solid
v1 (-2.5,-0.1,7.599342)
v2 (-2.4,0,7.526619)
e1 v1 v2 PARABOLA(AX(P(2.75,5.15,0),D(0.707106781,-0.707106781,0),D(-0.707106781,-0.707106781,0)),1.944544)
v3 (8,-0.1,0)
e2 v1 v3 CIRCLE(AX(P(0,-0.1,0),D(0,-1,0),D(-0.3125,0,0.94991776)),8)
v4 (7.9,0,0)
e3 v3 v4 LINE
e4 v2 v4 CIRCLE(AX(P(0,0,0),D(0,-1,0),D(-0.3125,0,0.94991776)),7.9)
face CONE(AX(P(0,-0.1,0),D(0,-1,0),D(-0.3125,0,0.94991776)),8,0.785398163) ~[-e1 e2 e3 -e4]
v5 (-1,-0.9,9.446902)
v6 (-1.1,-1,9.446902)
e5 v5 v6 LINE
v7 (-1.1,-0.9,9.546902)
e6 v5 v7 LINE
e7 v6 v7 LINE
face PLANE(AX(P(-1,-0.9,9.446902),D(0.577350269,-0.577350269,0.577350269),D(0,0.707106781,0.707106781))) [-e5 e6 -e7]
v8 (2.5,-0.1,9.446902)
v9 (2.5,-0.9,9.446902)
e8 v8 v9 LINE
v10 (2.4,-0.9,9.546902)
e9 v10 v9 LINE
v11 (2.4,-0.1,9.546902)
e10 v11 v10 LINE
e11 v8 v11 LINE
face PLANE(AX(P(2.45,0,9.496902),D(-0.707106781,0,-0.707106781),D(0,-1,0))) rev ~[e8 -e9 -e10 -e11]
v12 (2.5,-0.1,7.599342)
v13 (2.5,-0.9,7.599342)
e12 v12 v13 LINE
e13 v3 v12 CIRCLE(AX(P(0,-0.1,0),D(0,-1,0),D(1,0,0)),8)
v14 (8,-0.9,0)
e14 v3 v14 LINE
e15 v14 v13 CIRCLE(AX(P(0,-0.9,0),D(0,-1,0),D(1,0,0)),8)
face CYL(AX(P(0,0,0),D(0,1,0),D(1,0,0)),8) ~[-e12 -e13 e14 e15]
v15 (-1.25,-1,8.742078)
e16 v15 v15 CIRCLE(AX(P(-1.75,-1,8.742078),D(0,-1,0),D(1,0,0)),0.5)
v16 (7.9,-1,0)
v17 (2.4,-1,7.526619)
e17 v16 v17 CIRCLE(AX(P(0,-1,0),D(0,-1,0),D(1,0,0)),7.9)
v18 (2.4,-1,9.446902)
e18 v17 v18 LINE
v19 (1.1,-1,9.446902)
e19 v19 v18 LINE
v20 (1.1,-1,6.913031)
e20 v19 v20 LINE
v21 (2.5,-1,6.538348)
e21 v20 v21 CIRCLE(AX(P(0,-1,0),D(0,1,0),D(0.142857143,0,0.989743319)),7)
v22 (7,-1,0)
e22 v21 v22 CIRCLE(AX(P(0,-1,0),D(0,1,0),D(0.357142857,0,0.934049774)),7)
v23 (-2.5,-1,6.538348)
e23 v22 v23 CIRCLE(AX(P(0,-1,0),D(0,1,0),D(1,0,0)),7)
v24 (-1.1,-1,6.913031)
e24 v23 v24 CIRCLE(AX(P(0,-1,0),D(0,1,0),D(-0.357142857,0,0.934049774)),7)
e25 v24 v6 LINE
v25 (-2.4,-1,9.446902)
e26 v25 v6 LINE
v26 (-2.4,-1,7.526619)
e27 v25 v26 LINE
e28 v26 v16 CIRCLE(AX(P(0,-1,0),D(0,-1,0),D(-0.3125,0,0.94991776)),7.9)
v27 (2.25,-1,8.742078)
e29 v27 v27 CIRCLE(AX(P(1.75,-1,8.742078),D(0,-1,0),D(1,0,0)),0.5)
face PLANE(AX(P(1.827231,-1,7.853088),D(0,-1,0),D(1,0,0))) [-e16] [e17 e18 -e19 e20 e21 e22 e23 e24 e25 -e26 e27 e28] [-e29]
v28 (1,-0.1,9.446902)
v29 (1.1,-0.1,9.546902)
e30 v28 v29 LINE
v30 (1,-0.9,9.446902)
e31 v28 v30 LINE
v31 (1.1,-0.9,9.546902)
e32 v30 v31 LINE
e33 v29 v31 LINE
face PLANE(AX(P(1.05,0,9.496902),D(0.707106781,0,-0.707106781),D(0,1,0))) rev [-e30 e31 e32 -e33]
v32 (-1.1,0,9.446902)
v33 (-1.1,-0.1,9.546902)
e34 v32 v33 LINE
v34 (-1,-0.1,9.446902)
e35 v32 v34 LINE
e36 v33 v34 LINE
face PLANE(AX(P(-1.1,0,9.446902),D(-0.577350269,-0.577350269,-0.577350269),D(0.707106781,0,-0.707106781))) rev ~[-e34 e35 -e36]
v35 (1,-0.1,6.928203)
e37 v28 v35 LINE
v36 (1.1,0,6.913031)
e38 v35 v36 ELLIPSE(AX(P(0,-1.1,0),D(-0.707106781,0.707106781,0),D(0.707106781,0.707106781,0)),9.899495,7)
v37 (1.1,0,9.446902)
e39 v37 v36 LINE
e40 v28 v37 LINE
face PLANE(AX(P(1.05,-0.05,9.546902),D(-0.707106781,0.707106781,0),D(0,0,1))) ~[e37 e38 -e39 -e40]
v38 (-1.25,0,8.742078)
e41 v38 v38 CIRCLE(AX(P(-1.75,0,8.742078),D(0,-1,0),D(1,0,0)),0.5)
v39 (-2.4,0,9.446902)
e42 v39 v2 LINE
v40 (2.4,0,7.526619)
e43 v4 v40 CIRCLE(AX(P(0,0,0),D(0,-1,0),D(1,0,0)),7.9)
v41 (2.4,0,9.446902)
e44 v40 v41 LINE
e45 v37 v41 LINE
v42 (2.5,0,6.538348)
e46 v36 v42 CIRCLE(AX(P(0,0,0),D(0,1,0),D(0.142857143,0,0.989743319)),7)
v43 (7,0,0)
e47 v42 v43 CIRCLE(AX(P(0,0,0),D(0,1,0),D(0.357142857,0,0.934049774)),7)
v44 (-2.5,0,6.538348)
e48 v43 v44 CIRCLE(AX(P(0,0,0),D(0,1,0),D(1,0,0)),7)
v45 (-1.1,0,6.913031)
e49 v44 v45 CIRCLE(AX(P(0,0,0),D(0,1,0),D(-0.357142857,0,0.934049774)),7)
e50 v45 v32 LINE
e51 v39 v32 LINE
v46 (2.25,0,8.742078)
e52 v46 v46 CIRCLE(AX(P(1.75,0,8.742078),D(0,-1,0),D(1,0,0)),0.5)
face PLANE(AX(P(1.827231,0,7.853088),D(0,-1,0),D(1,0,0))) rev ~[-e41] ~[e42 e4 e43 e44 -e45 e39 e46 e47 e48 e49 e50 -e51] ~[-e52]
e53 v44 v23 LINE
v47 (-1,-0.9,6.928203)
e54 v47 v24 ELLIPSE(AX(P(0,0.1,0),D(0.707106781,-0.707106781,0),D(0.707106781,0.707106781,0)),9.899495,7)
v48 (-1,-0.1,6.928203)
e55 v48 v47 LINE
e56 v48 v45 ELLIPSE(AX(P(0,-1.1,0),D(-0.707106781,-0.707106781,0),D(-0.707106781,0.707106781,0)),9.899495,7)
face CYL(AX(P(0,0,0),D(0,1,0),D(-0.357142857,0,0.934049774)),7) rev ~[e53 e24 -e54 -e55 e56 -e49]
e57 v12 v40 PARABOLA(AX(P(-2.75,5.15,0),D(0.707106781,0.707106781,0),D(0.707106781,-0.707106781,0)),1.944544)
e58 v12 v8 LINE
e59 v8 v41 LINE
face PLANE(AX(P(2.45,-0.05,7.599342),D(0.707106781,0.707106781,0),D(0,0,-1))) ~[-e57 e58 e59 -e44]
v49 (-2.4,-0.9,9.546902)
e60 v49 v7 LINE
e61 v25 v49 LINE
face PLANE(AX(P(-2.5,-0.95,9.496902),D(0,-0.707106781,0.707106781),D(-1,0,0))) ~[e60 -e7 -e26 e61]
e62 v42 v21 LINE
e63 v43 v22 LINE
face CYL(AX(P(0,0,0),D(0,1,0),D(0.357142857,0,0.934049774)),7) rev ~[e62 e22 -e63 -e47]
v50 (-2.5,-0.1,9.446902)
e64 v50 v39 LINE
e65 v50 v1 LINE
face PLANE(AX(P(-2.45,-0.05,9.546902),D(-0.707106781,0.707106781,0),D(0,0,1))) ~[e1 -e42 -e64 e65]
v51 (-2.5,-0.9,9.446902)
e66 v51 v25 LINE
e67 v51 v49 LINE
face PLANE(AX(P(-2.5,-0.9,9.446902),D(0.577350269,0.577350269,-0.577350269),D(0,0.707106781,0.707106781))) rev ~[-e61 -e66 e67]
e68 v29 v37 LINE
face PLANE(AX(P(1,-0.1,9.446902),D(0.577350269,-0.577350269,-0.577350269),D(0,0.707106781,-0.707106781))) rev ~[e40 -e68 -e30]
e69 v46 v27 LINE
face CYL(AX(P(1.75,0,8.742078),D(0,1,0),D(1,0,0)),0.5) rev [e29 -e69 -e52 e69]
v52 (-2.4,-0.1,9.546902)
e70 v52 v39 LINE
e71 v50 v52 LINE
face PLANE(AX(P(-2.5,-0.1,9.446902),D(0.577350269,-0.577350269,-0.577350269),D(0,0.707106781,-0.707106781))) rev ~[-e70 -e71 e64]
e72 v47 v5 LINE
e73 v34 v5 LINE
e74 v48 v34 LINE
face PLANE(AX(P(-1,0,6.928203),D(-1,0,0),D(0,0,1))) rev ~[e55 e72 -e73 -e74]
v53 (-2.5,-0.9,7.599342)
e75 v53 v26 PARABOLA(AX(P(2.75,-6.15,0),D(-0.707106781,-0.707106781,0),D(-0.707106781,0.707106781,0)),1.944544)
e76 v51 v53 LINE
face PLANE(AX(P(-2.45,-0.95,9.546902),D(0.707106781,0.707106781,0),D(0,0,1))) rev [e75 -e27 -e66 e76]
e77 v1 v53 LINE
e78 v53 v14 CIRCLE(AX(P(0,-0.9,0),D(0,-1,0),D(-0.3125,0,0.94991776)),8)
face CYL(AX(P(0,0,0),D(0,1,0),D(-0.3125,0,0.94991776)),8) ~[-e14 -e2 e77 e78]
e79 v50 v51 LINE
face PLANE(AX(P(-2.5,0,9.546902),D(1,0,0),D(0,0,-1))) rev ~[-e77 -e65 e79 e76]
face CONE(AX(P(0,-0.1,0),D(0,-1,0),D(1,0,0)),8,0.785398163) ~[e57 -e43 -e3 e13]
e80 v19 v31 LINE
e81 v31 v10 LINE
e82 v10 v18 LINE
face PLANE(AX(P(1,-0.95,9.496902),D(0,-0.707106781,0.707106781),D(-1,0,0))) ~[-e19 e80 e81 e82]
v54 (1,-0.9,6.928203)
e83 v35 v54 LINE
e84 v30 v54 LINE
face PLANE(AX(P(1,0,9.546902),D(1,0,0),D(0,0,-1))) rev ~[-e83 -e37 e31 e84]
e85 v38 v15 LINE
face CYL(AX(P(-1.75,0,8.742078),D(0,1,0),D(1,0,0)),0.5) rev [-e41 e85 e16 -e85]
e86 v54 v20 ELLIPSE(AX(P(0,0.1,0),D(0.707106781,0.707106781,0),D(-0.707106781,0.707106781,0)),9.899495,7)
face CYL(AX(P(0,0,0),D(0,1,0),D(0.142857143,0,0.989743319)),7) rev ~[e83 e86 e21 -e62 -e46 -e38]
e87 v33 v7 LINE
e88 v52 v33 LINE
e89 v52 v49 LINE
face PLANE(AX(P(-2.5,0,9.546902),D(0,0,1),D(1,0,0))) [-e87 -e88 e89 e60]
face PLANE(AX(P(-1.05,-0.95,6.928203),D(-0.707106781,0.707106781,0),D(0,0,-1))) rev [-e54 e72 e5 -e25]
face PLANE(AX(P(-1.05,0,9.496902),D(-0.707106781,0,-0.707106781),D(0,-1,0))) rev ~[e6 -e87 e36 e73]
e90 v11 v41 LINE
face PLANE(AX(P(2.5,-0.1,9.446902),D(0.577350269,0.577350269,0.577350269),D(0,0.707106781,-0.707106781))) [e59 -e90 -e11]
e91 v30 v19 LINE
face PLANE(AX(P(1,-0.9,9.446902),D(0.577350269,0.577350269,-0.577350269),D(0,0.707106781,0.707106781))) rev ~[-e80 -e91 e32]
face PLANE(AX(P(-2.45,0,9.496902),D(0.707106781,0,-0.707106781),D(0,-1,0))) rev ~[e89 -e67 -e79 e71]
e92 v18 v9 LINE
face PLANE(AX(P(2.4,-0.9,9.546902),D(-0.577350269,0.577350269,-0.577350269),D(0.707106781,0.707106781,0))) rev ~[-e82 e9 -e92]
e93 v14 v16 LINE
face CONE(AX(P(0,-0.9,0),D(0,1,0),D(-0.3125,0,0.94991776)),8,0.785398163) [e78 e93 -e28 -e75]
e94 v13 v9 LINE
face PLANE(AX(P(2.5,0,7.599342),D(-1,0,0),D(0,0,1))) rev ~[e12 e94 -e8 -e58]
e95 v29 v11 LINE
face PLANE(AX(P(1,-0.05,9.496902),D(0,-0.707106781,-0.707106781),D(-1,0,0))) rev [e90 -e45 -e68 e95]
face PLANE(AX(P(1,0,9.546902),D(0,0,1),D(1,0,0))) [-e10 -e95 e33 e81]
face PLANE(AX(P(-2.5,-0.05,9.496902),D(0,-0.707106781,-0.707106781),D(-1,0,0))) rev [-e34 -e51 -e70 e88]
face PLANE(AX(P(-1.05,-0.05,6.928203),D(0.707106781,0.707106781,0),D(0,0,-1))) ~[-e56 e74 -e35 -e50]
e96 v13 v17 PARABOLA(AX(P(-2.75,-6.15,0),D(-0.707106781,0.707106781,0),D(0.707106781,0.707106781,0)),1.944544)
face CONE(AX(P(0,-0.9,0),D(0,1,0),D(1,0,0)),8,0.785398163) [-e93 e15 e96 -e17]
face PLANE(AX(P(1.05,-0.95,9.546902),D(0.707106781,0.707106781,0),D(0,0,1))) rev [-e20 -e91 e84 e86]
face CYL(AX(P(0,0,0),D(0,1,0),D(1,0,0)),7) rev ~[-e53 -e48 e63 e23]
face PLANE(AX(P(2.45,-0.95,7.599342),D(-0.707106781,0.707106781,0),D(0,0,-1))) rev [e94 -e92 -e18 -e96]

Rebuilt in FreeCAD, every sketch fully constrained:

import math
import FreeCAD as App
import Part
import Sketcher

V = App.Vector


def edges_at(feature, points):
    """Names of the edges that pass closest to the given points."""
    edges = feature.Shape.Edges
    near = lambda p: min(range(len(edges)), key=lambda i: edges[i].distToShape(Part.Vertex(*p))[0])
    return sorted({f"Edge{near(p) + 1}" for p in points})

doc = App.newDocument("Part")
body = doc.addObject("PartDesign::Body", "Body")

# Sketch on XZ plane
sketch1 = body.newObject("Sketcher::SketchObject", "Sketch")
sketch1.AttachmentSupport = (doc.getObject("XZ_Plane"), [""])
sketch1.MapMode = "FlatFace"
sketch1.addGeometry([
    Part.LineSegment(V(1, 9.546902, 0), V(1, 6.928203, 0)),  # 0
    Part.ArcOfCircle(Part.Circle(V(0, 0, 0), V(0, 0, 1), 7), math.radians(69.075168), math.radians(81.786789)),  # 1
    Part.ArcOfCircle(Part.Circle(V(0, 0, 0), V(0, 0, 1), 7), math.radians(0), math.radians(69.075168)),  # 2
    Part.ArcOfCircle(Part.Circle(V(0, 0, 0), V(0, 0, 1), 7), math.radians(110.924832), math.radians(360)),  # 3
    Part.ArcOfCircle(Part.Circle(V(0, 0, 0), V(0, 0, 1), 7), math.radians(98.213211), math.radians(110.924832)),  # 4
    Part.LineSegment(V(-1, 6.928203, 0), V(-1, 9.546902, 0)),  # 5
    Part.LineSegment(V(-1, 9.546902, 0), V(-2.5, 9.546902, 0)),  # 6
    Part.LineSegment(V(-2.5, 9.546902, 0), V(-2.5, 7.599342, 0)),  # 7
    Part.ArcOfCircle(Part.Circle(V(0, 0, 0), V(0, 0, 1), 8), math.radians(108.209957), math.radians(360)),  # 8
    Part.ArcOfCircle(Part.Circle(V(0, 0, 0), V(0, 0, 1), 8), math.radians(0), math.radians(71.790043)),  # 9
    Part.LineSegment(V(2.5, 7.599342, 0), V(2.5, 9.546902, 0)),  # 10
    Part.LineSegment(V(2.5, 9.546902, 0), V(1, 9.546902, 0)),  # 11
    Part.Circle(V(1.75, 8.742078, 0), V(0, 0, 1), 0.5),  # 12
    Part.Circle(V(-1.75, 8.742078, 0), V(0, 0, 1), 0.5),  # 13
], False)
sketch1.addConstraint([
    Sketcher.Constraint("Coincident", 0, 2, 1, 2),
    Sketcher.Constraint("Tangent", 1, 1, 2, 2),
    Sketcher.Constraint("Tangent", 2, 1, 3, 2),
    Sketcher.Constraint("Tangent", 3, 1, 4, 2),
    Sketcher.Constraint("Coincident", 4, 1, 5, 1),
    Sketcher.Constraint("Coincident", 5, 2, 6, 1),
    Sketcher.Constraint("Coincident", 6, 2, 7, 1),
    Sketcher.Constraint("Coincident", 7, 2, 8, 1),
    Sketcher.Constraint("Tangent", 8, 2, 9, 1),
    Sketcher.Constraint("Coincident", 9, 2, 10, 1),
    Sketcher.Constraint("Coincident", 10, 2, 11, 1),
    Sketcher.Constraint("Coincident", 11, 2, 0, 1),
    Sketcher.Constraint("Vertical", 0),
    Sketcher.Constraint("Vertical", 5),
    Sketcher.Constraint("Horizontal", 6),
    Sketcher.Constraint("Vertical", 7),
    Sketcher.Constraint("Vertical", 10),
    Sketcher.Constraint("Horizontal", 11),
    Sketcher.Constraint("Coincident", 1, 3, -1, 1),
    Sketcher.Constraint("Coincident", 3, 3, -1, 1),
    Sketcher.Constraint("Coincident", 8, 3, -1, 1),
    Sketcher.Constraint("Equal", 3, 4),
    Sketcher.Constraint("Equal", 8, 9),
    Sketcher.Constraint("Equal", 12, 13),
    Sketcher.Constraint("Symmetric", 12, 3, 13, 3, -2),
    Sketcher.Constraint("Symmetric", 6, 2, 10, 2, -2),
    Sketcher.Constraint("PointOnObject", 2, 1, -1),
    Sketcher.Constraint("PointOnObject", 8, 2, -1),
    Sketcher.Constraint("Horizontal", 1, 1, 3, 1),
    Sketcher.Constraint("Horizontal", 0, 2, 4, 1),
    Sketcher.Constraint("Vertical", 3, 1, 6, 2),
    Sketcher.Constraint("Diameter", 12, 1.0),
    Sketcher.Constraint("Radius", 1, 7.0),
    Sketcher.Constraint("Radius", 8, 8.0),
    Sketcher.Constraint("DistanceX", 6, 2, 6, 1, 1.5),
    Sketcher.Constraint("DistanceX", -1, 1, 0, 2, 1.0),
    Sketcher.Constraint("DistanceX", 13, 3, 12, 3, 3.5),
    Sketcher.Constraint("DistanceY", 0, 2, 0, 1, 2.618699),
    Sketcher.Constraint("DistanceY", -1, 1, 12, 3, 8.742078),
])
pad1 = body.newObject("PartDesign::Pad", "Pad")
pad1.Profile = sketch1
pad1.Length = 1
doc.recompute()

chamfer = body.newObject("PartDesign::Chamfer", "Chamfer")
chamfer.Base = (pad1, edges_at(pad1, [
    (-1.75, -1, 9.547),
    (-1, -1, 8.238),
    (-2.5, -1, 8.573),
    (-4.69, -1, -6.481),
    (2.5, -1, 8.573),
    (1.75, -1, 9.547),
    (1, -1, 8.238),
    (1.75, 0, 9.547),
    (1, -0.5, 9.547),
    (2.5, -0.5, 9.547),
    (-1, -0.5, 9.547),
    (-1.75, 0, 9.547),
    (-2.5, -0.5, 9.547),
    (-1, 0, 8.238),
    (1, 0, 8.238),
    (2.5, 0, 8.573),
    (-2.5, 0, 8.573),
    (-4.69, 0, -6.481),
]))
chamfer.Size = 0.1

doc.recompute()
